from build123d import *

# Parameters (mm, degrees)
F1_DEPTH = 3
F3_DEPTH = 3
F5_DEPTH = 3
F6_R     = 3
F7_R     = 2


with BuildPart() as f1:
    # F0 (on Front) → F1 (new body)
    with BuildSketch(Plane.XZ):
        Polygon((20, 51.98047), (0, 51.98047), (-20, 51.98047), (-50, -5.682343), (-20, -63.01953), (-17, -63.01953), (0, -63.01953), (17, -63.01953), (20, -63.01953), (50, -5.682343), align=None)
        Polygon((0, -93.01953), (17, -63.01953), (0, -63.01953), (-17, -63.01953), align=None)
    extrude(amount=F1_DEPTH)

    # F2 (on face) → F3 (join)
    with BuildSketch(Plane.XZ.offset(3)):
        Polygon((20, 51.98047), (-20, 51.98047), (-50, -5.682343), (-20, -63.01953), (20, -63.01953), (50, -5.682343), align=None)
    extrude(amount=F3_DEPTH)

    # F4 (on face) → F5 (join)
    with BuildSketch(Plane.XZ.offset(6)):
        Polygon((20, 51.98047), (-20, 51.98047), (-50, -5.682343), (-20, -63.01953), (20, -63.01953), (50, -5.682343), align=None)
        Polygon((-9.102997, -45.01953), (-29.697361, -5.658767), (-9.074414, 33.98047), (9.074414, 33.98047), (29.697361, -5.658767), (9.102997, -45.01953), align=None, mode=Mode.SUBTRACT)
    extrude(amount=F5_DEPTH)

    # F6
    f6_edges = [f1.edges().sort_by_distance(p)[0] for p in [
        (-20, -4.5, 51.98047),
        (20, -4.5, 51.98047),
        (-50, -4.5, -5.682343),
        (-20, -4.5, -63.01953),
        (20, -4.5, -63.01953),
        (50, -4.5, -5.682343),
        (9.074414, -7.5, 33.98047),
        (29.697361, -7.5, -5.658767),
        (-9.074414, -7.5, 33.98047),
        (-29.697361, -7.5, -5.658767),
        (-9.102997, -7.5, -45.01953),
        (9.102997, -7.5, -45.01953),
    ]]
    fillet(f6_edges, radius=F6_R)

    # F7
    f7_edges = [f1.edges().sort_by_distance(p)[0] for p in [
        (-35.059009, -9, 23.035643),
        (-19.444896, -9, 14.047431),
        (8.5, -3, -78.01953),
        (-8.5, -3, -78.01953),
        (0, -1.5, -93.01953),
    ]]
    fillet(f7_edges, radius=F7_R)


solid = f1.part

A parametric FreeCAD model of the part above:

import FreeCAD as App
import Part
import Sketcher

V = App.Vector
Q = App.Units.Quantity


def edges_at(feature, points):
    """Names of the edges that pass closest to the given points."""
    edges = feature.Shape.Edges
    near = lambda p: min(range(len(edges)), key=lambda i: edges[i].distToShape(Part.Vertex(*p))[0])
    return sorted({f"Edge{near(p) + 1}" for p in points})


def add_polygon(sketch, points):
    """Adds a closed chain of lines whose ends are joined by coincident constraints."""
    first, n = sketch.GeometryCount, len(points)
    for a, b in zip(points, points[1:] + points[:1]):
        sketch.addGeometry(Part.LineSegment(App.Vector(*a, 0), App.Vector(*b, 0)), False)
    for i in range(n):
        sketch.addConstraint(Sketcher.Constraint("Coincident", first + i, 2, first + (i + 1) % n, 1))

doc = App.newDocument("Part")
body = doc.addObject("PartDesign::Body", "Body")

# Sketch on XZ plane
sketch1 = body.newObject("Sketcher::SketchObject", "Sketch")
sketch1.AttachmentSupport = (doc.getObject("XZ_Plane"), [""])
sketch1.MapMode = "FlatFace"
add_polygon(sketch1, [(20, 52), (-20, 52), (-50, -5.7), (-20, -63), (-17, -63), (0, -93), (17, -63), (20, -63), (50, -5.7)])  # lines 0-8
sketch1.addConstraint([
    Sketcher.Constraint("Horizontal", 0),
    Sketcher.Constraint("Horizontal", 3),
    Sketcher.Constraint("Horizontal", 6),
    Sketcher.Constraint("Symmetric", 3, 2, 5, 2, -2),
    Sketcher.Constraint("Symmetric", 1, 2, 7, 2, -2),
    Sketcher.Constraint("PointOnObject", 4, 2, -2),
    Sketcher.Constraint("Vertical", 0, 2, 2, 2),
    Sketcher.Constraint("Vertical", 6, 2, 8, 2),
    Sketcher.Constraint("Equal", 3, 6),
    Sketcher.Constraint("DistanceX", 0, 2, 0, 1, Q("40 mm")),
    Sketcher.Constraint("DistanceX", 3, 1, 3, 2, Q("3 mm")),
    Sketcher.Constraint("Distance", 1, Q("65 mm")),
    Sketcher.Constraint("DistanceX", 1, 2, -1, 1, Q("50 mm")),
    Sketcher.Constraint("DistanceY", 2, 2, 0, 2, Q("115 mm")),
    Sketcher.Constraint("DistanceY", 4, 2, 3, 2, Q("30 mm")),
    Sketcher.Constraint("DistanceY", -1, 1, 0, 2, Q("51.98047 mm")),
])
pad1 = body.newObject("PartDesign::Pad", "Pad")
pad1.Profile = sketch1
pad1.Length = 3

# Sketch on XZ plane
sketch2 = body.newObject("Sketcher::SketchObject", "Sketch001")
sketch2.AttachmentSupport = (doc.getObject("XZ_Plane"), [""])
sketch2.MapMode = "FlatFace"
sketch2.AttachmentOffset = App.Placement(V(0, 0, 3), App.Rotation())
add_polygon(sketch2, [(20, 52), (-20, 52), (-50, -6), (-20, -63), (20, -63), (50, -6)])  # lines 0-5
sketch2.addConstraint([
    Sketcher.Constraint("Horizontal", 0),
    Sketcher.Constraint("Horizontal", 3),
    Sketcher.Constraint("Symmetric", 1, 2, 4, 2, -2),
    Sketcher.Constraint("Vertical", 0, 2, 2, 2),
    Sketcher.Constraint("Vertical", 3, 2, 5, 2),
    Sketcher.Constraint("Equal", 2, 4),
    Sketcher.Constraint("DistanceX", 0, 2, 0, 1, Q("40 mm")),
    Sketcher.Constraint("Distance", 1, Q("65 mm")),
    Sketcher.Constraint("DistanceX", 1, 2, -1, 1, Q("50 mm")),
    Sketcher.Constraint("DistanceY", 2, 2, 0, 2, Q("115 mm")),
    Sketcher.Constraint("DistanceY", -1, 1, 0, 2, Q("51.98047 mm")),
])
pad2 = body.newObject("PartDesign::Pad", "Pad001")
pad2.Profile = sketch2
pad2.Length = 3

# Sketch on XZ plane
sketch3 = body.newObject("Sketcher::SketchObject", "Sketch002")
sketch3.AttachmentSupport = (doc.getObject("XZ_Plane"), [""])
sketch3.MapMode = "FlatFace"
sketch3.AttachmentOffset = App.Placement(V(0, 0, 6), App.Rotation())
add_polygon(sketch3, [(20, 52), (-20, 52), (-50, -6), (-20, -63), (20, -63), (50, -6)])  # lines 0-5
add_polygon(sketch3, [(9, -45), (-9, -45), (-30, -6), (-9, 34), (9, 34), (30, -6)])  # lines 6-11
sketch3.addConstraint([
    Sketcher.Constraint("Horizontal", 0),
    Sketcher.Constraint("Horizontal", 3),
    Sketcher.Constraint("Horizontal", 6),
    Sketcher.Constraint("Horizontal", 9),
    Sketcher.Constraint("Symmetric", 1, 2, 4, 2, -2),
    Sketcher.Constraint("Symmetric", 7, 2, 10, 2, -2),
    Sketcher.Constraint("Parallel", 2, 7),
    Sketcher.Constraint("Parallel", 1, 8),
    Sketcher.Constraint("Parallel", 5, 10),
    Sketcher.Constraint("Parallel", 4, 11),
    Sketcher.Constraint("Vertical", 0, 2, 2, 2),
    Sketcher.Constraint("Vertical", 3, 2, 5, 2),
    Sketcher.Constraint("Equal", 2, 4),
    Sketcher.Constraint("DistanceX", 0, 2, 0, 1, Q("40 mm")),
    Sketcher.Constraint("Distance", 1, Q("65 mm")),
    Sketcher.Constraint("DistanceX", 1, 2, -1, 1, Q("50 mm")),
    Sketcher.Constraint("DistanceY", 2, 2, 0, 2, Q("115 mm")),
    Sketcher.Constraint("DistanceY", 2, 2, 6, 2, Q("18 mm")),
    Sketcher.Constraint("DistanceY", 8, 2, 0, 2, Q("18 mm")),
    Sketcher.Constraint("DistanceX", 9, 1, 9, 2, Q("18.148828 mm")),
    Sketcher.Constraint("Distance", 7, Q("44.422939 mm")),
    Sketcher.Constraint("DistanceY", -1, 1, 0, 2, Q("51.98047 mm")),
])
pad3 = body.newObject("PartDesign::Pad", "Pad002")
pad3.Profile = sketch3
pad3.Length = 3
doc.recompute()

fillet = body.newObject("PartDesign::Fillet", "Fillet")
fillet.Base = (pad3, edges_at(pad3, [
    (-20, -4.5, 51.98),
    (20, -4.5, 51.98),
    (-50, -4.5, -5.682),
    (-20, -4.5, -63.02),
    (20, -4.5, -63.02),
    (50, -4.5, -5.682),
    (9.074, -7.5, 33.98),
    (29.697, -7.5, -5.659),
    (-9.074, -7.5, 33.98),
    (-29.697, -7.5, -5.659),
    (-9.103, -7.5, -45.02),
    (9.103, -7.5, -45.02),
]))
fillet.Radius = 3
doc.recompute()

fillet2 = body.newObject("PartDesign::Fillet", "Fillet001")
fillet2.Base = (fillet, edges_at(fillet, [
    (-35.059, -9, 23.036),
    (-19.445, -9, 14.047),
    (8.5, -3, -78.02),
    (-8.5, -3, -78.02),
    (0, -1.5, -93.02),
]))
fillet2.Radius = 2

doc.recompute()
